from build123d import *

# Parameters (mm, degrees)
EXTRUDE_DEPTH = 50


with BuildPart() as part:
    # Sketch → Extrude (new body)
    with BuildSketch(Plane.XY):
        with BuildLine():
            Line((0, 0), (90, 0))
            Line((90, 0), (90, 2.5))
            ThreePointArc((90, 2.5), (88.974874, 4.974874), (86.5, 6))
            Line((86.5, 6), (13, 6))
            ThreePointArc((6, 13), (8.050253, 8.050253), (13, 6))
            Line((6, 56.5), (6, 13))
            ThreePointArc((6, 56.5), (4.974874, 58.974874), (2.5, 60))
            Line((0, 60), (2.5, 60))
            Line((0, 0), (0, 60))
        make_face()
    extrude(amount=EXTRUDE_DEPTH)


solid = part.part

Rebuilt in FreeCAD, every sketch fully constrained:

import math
import FreeCAD as App
import Part
import Sketcher

doc = App.newDocument("Part")
body = doc.addObject("PartDesign::Body", "Body")

# Sketch on XY plane
sketch1 = body.newObject("Sketcher::SketchObject", "Sketch")
sketch1.AttachmentSupport = (doc.getObject("XY_Plane"), [""])
sketch1.MapMode = "FlatFace"
sketch1.addGeometry(Part.LineSegment(App.Vector(0, 0, 0), App.Vector(90, 0, 0)), False)
sketch1.addGeometry(Part.LineSegment(App.Vector(90, 0, 0), App.Vector(90, 2.5, 0)), False)
sketch1.addGeometry(Part.ArcOfCircle(Part.Circle(App.Vector(86.500001, 2.500001, 0), App.Vector(0, 0, 1), 3.499999), math.radians(-0.000015), math.radians(90.000015)), False)
sketch1.addGeometry(Part.LineSegment(App.Vector(86.5, 6, 0), App.Vector(13, 6, 0)), False)
sketch1.addGeometry(Part.ArcOfCircle(Part.Circle(App.Vector(13.000002, 13.000002, 0), App.Vector(0, 0, 1), 7.000002), math.radians(-179.999987), math.radians(-90.000013)), False)
sketch1.addGeometry(Part.LineSegment(App.Vector(6, 13, 0), App.Vector(6, 56.5, 0)), False)
sketch1.addGeometry(Part.ArcOfCircle(Part.Circle(App.Vector(2.500001, 56.500001, 0), App.Vector(0, 0, 1), 3.499999), math.radians(-0.000015), math.radians(90.000015)), False)
sketch1.addGeometry(Part.LineSegment(App.Vector(2.5, 60, 0), App.Vector(0, 60, 0)), False)
sketch1.addGeometry(Part.LineSegment(App.Vector(0, 60, 0), App.Vector(0, 0, 0)), False)
sketch1.addConstraint(Sketcher.Constraint("Coincident", 0, 2, 1, 1))
sketch1.addConstraint(Sketcher.Constraint("Tangent", 1, 2, 2, 1))
sketch1.addConstraint(Sketcher.Constraint("Tangent", 2, 2, 3, 1))
sketch1.addConstraint(Sketcher.Constraint("Tangent", 3, 2, 4, 2))
sketch1.addConstraint(Sketcher.Constraint("Tangent", 4, 1, 5, 1))
sketch1.addConstraint(Sketcher.Constraint("Tangent", 5, 2, 6, 1))
sketch1.addConstraint(Sketcher.Constraint("Tangent", 6, 2, 7, 1))
sketch1.addConstraint(Sketcher.Constraint("Coincident", 7, 2, 8, 1))
sketch1.addConstraint(Sketcher.Constraint("Coincident", 8, 2, 0, 1))
sketch1.addConstraint(Sketcher.Constraint("Horizontal", 0))
sketch1.addConstraint(Sketcher.Constraint("Vertical", 1))
sketch1.addConstraint(Sketcher.Constraint("Horizontal", 3))
sketch1.addConstraint(Sketcher.Constraint("Vertical", 5))
sketch1.addConstraint(Sketcher.Constraint("Horizontal", 7))
sketch1.addConstraint(Sketcher.Constraint("Vertical", 8))
sketch1.addConstraint(Sketcher.Constraint("Coincident", 8, 2, -1, 1))
sketch1.addConstraint(Sketcher.Constraint("Equal", 2, 6))
sketch1.addConstraint(Sketcher.Constraint("Equal", 7, 1))
sketch1.addConstraint(Sketcher.Constraint("Radius", 4, 7.000002))
sketch1.addConstraint(Sketcher.Constraint("Radius", 2, 3.499999))
sketch1.addConstraint(Sketcher.Constraint("DistanceX", 0, 1, 0, 2, 90.0))
sketch1.addConstraint(Sketcher.Constraint("DistanceY", 8, 2, 8, 1, 60.0))
sketch1.addConstraint(Sketcher.Constraint("DistanceX", 3, 2, 3, 1, 73.5))
pad1 = body.newObject("PartDesign::Pad", "Pad")
pad1.Profile = sketch1
pad1.Length = 50

doc.recompute()
